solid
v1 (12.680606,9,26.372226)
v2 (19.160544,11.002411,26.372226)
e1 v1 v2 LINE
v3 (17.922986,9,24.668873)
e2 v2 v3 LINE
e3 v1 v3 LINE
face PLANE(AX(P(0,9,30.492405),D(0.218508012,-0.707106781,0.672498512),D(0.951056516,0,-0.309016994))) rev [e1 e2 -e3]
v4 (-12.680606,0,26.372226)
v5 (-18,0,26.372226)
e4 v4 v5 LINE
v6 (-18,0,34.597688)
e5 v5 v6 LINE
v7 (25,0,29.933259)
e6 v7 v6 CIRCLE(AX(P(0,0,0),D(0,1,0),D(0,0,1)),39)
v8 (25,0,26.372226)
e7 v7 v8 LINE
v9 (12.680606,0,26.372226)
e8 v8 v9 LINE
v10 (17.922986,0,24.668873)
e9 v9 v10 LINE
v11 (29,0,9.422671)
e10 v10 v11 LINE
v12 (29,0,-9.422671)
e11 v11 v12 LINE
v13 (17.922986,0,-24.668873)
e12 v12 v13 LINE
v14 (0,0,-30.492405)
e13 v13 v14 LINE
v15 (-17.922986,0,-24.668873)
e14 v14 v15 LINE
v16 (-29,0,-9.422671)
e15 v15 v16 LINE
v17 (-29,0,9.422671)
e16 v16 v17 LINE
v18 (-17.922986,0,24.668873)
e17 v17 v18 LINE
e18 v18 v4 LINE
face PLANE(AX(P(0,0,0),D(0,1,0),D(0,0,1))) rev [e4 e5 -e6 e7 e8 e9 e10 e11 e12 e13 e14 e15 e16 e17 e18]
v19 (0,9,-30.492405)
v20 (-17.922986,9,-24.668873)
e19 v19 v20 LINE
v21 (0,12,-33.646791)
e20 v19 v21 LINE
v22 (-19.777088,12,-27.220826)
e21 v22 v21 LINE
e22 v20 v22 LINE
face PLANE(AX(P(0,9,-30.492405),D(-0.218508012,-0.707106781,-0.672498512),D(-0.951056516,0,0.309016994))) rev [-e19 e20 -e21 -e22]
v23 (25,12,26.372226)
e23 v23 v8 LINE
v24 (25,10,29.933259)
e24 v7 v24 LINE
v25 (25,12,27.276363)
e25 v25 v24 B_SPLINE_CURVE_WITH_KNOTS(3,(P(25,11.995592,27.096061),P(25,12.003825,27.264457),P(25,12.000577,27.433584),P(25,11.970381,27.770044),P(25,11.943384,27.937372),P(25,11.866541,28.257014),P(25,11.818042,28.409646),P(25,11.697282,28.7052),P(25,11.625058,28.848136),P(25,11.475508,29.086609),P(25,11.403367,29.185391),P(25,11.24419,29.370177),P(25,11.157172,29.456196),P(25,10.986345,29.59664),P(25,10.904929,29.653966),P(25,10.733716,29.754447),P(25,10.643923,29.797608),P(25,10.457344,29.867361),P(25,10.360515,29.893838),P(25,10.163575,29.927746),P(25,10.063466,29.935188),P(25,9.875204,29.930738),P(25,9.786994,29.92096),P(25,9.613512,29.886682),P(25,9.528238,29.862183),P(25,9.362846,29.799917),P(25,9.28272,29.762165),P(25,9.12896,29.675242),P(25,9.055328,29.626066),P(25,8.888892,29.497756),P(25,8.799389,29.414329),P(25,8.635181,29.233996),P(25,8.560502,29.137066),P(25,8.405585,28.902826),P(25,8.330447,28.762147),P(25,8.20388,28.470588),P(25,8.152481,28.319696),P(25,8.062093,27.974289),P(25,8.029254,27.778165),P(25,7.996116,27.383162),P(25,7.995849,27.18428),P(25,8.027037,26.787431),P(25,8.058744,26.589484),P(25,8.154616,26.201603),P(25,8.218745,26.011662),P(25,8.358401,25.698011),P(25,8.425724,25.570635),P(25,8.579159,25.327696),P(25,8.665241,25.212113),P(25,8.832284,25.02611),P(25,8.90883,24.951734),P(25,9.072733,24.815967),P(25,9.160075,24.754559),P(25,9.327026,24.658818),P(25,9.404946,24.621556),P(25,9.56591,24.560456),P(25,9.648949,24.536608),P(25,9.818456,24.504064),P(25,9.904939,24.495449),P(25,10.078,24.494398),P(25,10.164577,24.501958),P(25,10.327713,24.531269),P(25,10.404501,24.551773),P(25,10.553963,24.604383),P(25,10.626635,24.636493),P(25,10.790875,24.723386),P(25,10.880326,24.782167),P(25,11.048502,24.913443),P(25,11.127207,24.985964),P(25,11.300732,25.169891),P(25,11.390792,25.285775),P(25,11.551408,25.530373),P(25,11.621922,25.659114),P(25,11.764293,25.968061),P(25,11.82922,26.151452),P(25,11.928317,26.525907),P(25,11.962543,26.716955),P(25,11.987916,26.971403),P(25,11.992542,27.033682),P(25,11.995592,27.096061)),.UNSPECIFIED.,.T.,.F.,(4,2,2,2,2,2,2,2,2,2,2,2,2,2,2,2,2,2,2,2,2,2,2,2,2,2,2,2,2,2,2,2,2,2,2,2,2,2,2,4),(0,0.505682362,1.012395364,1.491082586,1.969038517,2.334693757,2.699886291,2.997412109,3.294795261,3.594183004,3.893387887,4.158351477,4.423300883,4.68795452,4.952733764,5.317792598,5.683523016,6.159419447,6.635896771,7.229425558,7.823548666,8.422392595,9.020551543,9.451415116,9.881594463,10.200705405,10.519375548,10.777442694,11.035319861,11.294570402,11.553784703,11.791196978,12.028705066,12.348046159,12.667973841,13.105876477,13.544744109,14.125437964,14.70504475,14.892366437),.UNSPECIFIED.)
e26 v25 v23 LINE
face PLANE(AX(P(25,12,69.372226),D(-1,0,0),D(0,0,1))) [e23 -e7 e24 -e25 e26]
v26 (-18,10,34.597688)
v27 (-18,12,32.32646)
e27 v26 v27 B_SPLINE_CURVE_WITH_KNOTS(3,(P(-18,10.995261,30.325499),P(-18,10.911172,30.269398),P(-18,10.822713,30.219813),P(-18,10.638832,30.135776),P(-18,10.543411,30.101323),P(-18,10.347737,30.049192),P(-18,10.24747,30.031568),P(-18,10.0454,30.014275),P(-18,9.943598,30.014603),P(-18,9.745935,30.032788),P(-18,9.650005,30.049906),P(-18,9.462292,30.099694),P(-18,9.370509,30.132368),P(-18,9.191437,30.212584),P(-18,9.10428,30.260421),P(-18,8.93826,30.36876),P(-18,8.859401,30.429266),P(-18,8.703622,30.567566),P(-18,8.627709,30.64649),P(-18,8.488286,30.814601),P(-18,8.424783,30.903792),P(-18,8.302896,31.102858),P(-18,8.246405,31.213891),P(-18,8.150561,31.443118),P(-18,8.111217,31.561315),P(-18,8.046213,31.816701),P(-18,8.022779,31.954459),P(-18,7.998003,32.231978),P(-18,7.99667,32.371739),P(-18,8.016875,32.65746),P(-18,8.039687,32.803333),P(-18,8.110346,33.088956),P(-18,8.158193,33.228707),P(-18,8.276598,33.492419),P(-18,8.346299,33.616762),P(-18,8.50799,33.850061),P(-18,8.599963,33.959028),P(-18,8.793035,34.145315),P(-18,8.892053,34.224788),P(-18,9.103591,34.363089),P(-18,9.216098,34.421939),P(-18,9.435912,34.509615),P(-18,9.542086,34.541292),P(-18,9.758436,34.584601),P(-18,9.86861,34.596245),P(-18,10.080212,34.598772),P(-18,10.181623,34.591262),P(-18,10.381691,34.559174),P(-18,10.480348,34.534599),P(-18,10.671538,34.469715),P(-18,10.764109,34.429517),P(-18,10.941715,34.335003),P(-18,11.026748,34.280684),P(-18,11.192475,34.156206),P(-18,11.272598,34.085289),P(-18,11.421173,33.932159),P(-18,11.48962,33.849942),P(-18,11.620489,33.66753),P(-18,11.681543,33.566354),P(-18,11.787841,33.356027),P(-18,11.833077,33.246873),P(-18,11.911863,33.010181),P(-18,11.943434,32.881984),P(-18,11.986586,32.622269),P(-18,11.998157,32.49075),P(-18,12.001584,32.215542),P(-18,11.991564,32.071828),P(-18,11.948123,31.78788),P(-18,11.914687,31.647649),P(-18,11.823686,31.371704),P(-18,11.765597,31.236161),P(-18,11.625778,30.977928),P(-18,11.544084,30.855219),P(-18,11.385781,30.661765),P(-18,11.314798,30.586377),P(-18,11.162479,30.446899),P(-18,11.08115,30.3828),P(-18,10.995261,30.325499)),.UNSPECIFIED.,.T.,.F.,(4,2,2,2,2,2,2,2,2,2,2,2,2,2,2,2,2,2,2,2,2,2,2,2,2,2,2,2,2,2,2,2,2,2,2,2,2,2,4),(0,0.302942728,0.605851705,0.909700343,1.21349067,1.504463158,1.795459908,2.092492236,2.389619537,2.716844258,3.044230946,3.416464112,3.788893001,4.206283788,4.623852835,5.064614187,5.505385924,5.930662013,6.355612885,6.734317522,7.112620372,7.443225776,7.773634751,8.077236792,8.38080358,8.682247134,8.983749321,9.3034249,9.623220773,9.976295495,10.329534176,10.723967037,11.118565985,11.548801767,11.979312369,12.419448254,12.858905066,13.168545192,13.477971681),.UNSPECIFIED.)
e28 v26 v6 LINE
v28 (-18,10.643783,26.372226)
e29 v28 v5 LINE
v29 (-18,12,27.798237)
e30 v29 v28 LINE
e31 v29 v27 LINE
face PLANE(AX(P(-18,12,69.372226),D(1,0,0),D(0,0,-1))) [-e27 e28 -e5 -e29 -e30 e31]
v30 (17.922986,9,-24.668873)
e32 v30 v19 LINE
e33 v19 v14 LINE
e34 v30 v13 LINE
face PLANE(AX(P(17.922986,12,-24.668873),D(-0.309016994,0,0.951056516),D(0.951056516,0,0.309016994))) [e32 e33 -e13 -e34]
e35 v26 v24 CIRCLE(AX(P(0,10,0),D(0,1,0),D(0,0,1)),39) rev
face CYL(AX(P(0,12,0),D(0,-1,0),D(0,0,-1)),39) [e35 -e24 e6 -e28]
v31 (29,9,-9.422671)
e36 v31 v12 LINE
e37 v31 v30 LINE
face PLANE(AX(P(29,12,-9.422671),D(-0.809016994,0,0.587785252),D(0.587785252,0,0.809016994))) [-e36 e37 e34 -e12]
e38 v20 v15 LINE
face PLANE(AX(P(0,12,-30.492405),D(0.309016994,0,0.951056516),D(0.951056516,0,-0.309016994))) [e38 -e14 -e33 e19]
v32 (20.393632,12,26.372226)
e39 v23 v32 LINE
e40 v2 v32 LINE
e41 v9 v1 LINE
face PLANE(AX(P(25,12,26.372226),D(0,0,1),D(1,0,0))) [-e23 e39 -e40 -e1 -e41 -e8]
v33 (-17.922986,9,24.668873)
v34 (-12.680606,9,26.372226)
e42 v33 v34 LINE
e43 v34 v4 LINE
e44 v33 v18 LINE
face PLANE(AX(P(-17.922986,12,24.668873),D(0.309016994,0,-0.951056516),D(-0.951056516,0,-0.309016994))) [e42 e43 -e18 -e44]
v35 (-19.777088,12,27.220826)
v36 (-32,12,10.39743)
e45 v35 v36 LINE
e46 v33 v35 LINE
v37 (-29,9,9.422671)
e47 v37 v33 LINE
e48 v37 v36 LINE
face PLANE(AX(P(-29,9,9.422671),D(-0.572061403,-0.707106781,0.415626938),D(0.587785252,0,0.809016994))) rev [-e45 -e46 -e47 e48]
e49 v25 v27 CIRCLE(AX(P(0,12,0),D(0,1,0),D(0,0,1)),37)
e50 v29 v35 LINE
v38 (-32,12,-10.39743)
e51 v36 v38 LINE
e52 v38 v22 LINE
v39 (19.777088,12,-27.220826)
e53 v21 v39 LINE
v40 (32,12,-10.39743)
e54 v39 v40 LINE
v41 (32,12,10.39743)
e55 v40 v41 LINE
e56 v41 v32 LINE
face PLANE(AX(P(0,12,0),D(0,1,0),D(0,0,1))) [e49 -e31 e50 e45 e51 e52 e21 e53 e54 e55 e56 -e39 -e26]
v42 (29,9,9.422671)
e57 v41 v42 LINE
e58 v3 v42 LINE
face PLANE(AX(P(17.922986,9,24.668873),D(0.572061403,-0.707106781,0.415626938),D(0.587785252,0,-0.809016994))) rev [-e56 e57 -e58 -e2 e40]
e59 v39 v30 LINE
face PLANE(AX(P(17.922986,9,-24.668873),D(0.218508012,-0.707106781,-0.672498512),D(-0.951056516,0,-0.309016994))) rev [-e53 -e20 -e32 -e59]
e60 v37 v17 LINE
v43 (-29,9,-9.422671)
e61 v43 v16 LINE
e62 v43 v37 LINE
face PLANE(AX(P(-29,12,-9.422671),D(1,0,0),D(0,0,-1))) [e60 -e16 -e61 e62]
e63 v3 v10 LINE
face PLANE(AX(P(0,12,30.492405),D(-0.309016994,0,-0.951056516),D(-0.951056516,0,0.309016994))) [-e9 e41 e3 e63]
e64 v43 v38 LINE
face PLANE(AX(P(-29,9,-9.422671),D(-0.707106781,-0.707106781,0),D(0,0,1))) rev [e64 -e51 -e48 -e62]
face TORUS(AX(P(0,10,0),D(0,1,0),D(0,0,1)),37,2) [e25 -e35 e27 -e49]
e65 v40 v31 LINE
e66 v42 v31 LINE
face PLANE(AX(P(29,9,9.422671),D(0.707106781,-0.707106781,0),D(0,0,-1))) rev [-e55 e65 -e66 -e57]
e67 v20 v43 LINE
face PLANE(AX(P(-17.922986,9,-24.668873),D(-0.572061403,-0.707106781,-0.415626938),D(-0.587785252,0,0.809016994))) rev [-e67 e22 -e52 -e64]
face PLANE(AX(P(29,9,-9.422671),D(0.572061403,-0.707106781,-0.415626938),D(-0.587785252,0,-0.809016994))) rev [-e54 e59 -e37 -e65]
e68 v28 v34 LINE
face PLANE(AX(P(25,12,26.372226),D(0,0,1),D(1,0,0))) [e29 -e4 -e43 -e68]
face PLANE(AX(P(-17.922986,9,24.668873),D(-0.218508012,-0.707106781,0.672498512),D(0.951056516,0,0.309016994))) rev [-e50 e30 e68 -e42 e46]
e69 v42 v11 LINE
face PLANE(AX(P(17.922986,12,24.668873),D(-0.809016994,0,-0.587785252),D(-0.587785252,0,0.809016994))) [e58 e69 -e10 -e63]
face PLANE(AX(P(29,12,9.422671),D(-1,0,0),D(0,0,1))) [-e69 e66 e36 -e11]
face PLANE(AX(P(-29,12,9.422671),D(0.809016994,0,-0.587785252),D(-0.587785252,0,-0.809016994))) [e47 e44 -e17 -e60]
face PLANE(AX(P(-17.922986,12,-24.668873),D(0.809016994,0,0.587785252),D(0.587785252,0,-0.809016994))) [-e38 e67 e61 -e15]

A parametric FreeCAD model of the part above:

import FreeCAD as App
import Part
import Sketcher

V = App.Vector
Q = App.Units.Quantity


def edges_at(feature, points):
    """Names of the edges that pass closest to the given points."""
    edges = feature.Shape.Edges
    near = lambda p: min(range(len(edges)), key=lambda i: edges[i].distToShape(Part.Vertex(*p))[0])
    return sorted({f"Edge{near(p) + 1}" for p in points})


def add_polygon(sketch, points):
    """Adds a closed chain of lines whose ends are joined by coincident constraints."""
    first, n = sketch.GeometryCount, len(points)
    for a, b in zip(points, points[1:] + points[:1]):
        sketch.addGeometry(Part.LineSegment(App.Vector(*a, 0), App.Vector(*b, 0)), False)
    for i in range(n):
        sketch.addConstraint(Sketcher.Constraint("Coincident", first + i, 2, first + (i + 1) % n, 1))

doc = App.newDocument("Part")
params = doc.addObject("Spreadsheet::Sheet", "Params")
for row, (alias, value) in enumerate([
    ("sketch1_diameter", "78 mm"),
    ("pad1_length", "12 mm"),
    ("fillet_radius", "2 mm"),
    ("chamfer_size", "3 mm"),
    ("sketch2_width", "43 mm"),
], start=1):
    params.set(f"A{row}", alias)
    params.set(f"B{row}", "=" + value)
    params.setAlias(f"B{row}", alias)

body = doc.addObject("PartDesign::Body", "Body")

# Sketch on XZ plane
sketch1 = doc.addObject("Sketcher::SketchObject", "Sketch")
body.addObject(sketch1)
sketch1.AttachmentSupport = (doc.XZ_Plane, [""])
sketch1.MapMode = "FlatFace"
sketch1.addGeometry(Part.Circle(V(0, 0, 0), V(0, 0, 1), 39), False)  # 0
add_polygon(sketch1, [(0, -30.492405), (17.922986, -24.668873), (29, -9.422671), (29, 9.422671), (17.922986, 24.668873), (0, 30.492405), (-17.922986, 24.668873), (-29, 9.422671), (-29, -9.422671), (-17.922986, -24.668873)])  # lines 1-10
sketch1.addConstraint([
    Sketcher.Constraint("Vertical", 3),
    Sketcher.Constraint("Vertical", 8),
    Sketcher.Constraint("Coincident", 0, 3, -1, 1),
    Sketcher.Constraint("Symmetric", 1, 2, 6, 2, -1, 1),
    Sketcher.Constraint("Symmetric", 2, 2, 7, 2, -1, 1),
    Sketcher.Constraint("Symmetric", 4, 2, 9, 2, -1, 1),
    Sketcher.Constraint("Symmetric", 5, 2, 10, 2, -1, 1),
    Sketcher.Constraint("Symmetric", 4, 2, 6, 2, -2),
    Sketcher.Constraint("PointOnObject", 5, 2, -2),
    Sketcher.Constraint("Parallel", 4, 9),
    Sketcher.Constraint("Horizontal", 3, 2, 7, 2),
    Sketcher.Constraint("Equal", 1, 2),
    Sketcher.Constraint("Diameter", 0, 78.0),
    Sketcher.Constraint("Angle", 1, Q("18 deg")),
    Sketcher.Constraint("Angle", 2, Q("54 deg")),
    Sketcher.Constraint("DistanceX", -1, 1, 2, 2, 29.0),
    Sketcher.Constraint("DistanceY", 3, 1, 3, 2, 18.845342),
])
sketch1.setExpression("Constraints[22]", "Params.sketch1_diameter")
pad1 = doc.addObject("PartDesign::Pad", "Pad")
body.addObject(pad1)
pad1.Profile = sketch1
pad1.setExpression("Length", "Params.pad1_length")
pad1.Reversed = True
doc.recompute()

fillet = doc.addObject("PartDesign::Fillet", "Fillet")
body.addObject(fillet)
fillet.Base = (pad1, edges_at(pad1, [(0, 12, -39)]))
fillet.setExpression("Radius", "Params.fillet_radius")
doc.recompute()

chamfer = doc.addObject("PartDesign::Chamfer", "Chamfer")
body.addObject(chamfer)
chamfer.Base = (fillet, edges_at(fillet, [
    (23.461, 12, -17.046),
    (8.961, 12, -27.581),
    (-8.961, 12, -27.581),
    (-23.461, 12, -17.046),
    (-29, 12, 0),
    (-23.461, 12, 17.046),
    (-8.961, 12, 27.581),
    (8.961, 12, 27.581),
    (23.461, 12, 17.046),
    (29, 12, 0),
]))
chamfer.setExpression("Size", "Params.chamfer_size")

# Sketch on XZ plane
sketch2 = doc.addObject("Sketcher::SketchObject", "Sketch001")
body.addObject(sketch2)
sketch2.AttachmentSupport = (doc.XZ_Plane, [""])
sketch2.MapMode = "FlatFace"
add_polygon(sketch2, [(-18, 26.372226), (-18, 69.372226), (25, 69.372226), (25, 26.372226)])  # lines 0-3
sketch2.addConstraint([
    Sketcher.Constraint("Vertical", 0),
    Sketcher.Constraint("Horizontal", 1),
    Sketcher.Constraint("Vertical", 2),
    Sketcher.Constraint("Horizontal", 3),
    Sketcher.Constraint("Equal", 3, 0),
    Sketcher.Constraint("DistanceX", 1, 1, 1, 2, 43.0),
    Sketcher.Constraint("DistanceX", 0, 2, -1, 1, 18.0),
    Sketcher.Constraint("DistanceY", -1, 1, 0, 2, 69.372226),
])
sketch2.setExpression("Constraints[9]", "Params.sketch2_width")
pocket1 = doc.addObject("PartDesign::Pocket", "Pocket")
body.addObject(pocket1)
pocket1.Profile = sketch2
pocket1.Type = "ThroughAll"

doc.recompute()
